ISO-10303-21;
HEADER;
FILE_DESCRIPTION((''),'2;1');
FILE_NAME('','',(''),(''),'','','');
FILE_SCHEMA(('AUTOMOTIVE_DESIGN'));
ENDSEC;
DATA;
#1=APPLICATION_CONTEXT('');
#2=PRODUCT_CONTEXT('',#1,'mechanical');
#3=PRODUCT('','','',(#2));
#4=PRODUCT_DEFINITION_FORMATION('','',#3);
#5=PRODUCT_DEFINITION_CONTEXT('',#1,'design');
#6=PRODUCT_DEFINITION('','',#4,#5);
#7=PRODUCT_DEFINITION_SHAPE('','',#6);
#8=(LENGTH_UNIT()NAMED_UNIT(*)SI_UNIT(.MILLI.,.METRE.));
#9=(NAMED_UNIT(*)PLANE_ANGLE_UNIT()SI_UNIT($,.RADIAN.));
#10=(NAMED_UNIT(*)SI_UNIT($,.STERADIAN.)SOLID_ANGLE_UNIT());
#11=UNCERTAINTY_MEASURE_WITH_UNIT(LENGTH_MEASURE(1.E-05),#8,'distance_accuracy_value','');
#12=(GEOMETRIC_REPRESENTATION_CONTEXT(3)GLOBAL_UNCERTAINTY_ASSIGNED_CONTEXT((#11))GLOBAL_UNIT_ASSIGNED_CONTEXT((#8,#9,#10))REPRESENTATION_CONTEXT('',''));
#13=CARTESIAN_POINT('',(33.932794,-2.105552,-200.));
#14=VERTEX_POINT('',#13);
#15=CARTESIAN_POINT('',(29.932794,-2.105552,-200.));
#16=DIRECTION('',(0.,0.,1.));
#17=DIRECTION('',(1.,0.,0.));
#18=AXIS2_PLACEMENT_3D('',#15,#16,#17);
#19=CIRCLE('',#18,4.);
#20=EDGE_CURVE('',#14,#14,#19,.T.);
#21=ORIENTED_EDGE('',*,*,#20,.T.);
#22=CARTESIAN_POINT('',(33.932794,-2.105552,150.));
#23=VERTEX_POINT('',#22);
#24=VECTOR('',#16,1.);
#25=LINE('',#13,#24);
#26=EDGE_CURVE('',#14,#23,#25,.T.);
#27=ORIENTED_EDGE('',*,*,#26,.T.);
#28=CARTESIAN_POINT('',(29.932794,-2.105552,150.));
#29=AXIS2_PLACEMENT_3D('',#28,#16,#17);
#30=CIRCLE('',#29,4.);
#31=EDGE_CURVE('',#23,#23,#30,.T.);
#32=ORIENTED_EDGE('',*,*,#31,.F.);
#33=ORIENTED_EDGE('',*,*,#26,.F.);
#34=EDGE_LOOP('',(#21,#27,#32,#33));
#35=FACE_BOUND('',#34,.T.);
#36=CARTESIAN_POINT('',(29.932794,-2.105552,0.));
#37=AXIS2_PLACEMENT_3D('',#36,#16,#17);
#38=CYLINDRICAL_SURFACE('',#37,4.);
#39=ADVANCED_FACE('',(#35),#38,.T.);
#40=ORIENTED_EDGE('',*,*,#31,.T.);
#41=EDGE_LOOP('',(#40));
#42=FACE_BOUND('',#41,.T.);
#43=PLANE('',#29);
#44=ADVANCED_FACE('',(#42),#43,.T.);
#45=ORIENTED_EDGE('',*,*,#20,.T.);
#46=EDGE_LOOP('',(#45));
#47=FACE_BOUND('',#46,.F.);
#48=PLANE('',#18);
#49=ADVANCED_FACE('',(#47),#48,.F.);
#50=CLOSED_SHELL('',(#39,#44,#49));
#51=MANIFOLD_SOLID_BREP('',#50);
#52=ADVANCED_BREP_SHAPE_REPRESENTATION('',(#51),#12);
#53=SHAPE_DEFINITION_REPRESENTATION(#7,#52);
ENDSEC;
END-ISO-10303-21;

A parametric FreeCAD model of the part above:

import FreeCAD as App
import Part
import Sketcher
Q = App.Units.Quantity

doc = App.newDocument("Part")
body = doc.addObject("PartDesign::Body", "Body")

sketch1 = body.newObject("Sketcher::SketchObject", "Sketch")
sketch1.AttachmentSupport = (doc.getObject("XY_Plane"), [""])
sketch1.MapMode = "FlatFace"
sketch1.addGeometry(Part.Circle(App.Vector(29.932794, -2.105552, 0), App.Vector(0, 0, 1), 4), False)
sketch1.addConstraint([
    Sketcher.Constraint("Diameter", 0, Q("8 mm")),
    Sketcher.Constraint("DistanceX", -1, 1, 0, 3, Q("29.932794 mm")),
    Sketcher.Constraint("DistanceY", 0, 3, -1, 1, Q("2.105552 mm")),
])
pad1 = body.newObject("PartDesign::Pad", "Pad")
pad1.Profile = sketch1
pad1.Type = "TwoLengths"
pad1.Length = 150
pad1.Length2 = 200

doc.recompute()
